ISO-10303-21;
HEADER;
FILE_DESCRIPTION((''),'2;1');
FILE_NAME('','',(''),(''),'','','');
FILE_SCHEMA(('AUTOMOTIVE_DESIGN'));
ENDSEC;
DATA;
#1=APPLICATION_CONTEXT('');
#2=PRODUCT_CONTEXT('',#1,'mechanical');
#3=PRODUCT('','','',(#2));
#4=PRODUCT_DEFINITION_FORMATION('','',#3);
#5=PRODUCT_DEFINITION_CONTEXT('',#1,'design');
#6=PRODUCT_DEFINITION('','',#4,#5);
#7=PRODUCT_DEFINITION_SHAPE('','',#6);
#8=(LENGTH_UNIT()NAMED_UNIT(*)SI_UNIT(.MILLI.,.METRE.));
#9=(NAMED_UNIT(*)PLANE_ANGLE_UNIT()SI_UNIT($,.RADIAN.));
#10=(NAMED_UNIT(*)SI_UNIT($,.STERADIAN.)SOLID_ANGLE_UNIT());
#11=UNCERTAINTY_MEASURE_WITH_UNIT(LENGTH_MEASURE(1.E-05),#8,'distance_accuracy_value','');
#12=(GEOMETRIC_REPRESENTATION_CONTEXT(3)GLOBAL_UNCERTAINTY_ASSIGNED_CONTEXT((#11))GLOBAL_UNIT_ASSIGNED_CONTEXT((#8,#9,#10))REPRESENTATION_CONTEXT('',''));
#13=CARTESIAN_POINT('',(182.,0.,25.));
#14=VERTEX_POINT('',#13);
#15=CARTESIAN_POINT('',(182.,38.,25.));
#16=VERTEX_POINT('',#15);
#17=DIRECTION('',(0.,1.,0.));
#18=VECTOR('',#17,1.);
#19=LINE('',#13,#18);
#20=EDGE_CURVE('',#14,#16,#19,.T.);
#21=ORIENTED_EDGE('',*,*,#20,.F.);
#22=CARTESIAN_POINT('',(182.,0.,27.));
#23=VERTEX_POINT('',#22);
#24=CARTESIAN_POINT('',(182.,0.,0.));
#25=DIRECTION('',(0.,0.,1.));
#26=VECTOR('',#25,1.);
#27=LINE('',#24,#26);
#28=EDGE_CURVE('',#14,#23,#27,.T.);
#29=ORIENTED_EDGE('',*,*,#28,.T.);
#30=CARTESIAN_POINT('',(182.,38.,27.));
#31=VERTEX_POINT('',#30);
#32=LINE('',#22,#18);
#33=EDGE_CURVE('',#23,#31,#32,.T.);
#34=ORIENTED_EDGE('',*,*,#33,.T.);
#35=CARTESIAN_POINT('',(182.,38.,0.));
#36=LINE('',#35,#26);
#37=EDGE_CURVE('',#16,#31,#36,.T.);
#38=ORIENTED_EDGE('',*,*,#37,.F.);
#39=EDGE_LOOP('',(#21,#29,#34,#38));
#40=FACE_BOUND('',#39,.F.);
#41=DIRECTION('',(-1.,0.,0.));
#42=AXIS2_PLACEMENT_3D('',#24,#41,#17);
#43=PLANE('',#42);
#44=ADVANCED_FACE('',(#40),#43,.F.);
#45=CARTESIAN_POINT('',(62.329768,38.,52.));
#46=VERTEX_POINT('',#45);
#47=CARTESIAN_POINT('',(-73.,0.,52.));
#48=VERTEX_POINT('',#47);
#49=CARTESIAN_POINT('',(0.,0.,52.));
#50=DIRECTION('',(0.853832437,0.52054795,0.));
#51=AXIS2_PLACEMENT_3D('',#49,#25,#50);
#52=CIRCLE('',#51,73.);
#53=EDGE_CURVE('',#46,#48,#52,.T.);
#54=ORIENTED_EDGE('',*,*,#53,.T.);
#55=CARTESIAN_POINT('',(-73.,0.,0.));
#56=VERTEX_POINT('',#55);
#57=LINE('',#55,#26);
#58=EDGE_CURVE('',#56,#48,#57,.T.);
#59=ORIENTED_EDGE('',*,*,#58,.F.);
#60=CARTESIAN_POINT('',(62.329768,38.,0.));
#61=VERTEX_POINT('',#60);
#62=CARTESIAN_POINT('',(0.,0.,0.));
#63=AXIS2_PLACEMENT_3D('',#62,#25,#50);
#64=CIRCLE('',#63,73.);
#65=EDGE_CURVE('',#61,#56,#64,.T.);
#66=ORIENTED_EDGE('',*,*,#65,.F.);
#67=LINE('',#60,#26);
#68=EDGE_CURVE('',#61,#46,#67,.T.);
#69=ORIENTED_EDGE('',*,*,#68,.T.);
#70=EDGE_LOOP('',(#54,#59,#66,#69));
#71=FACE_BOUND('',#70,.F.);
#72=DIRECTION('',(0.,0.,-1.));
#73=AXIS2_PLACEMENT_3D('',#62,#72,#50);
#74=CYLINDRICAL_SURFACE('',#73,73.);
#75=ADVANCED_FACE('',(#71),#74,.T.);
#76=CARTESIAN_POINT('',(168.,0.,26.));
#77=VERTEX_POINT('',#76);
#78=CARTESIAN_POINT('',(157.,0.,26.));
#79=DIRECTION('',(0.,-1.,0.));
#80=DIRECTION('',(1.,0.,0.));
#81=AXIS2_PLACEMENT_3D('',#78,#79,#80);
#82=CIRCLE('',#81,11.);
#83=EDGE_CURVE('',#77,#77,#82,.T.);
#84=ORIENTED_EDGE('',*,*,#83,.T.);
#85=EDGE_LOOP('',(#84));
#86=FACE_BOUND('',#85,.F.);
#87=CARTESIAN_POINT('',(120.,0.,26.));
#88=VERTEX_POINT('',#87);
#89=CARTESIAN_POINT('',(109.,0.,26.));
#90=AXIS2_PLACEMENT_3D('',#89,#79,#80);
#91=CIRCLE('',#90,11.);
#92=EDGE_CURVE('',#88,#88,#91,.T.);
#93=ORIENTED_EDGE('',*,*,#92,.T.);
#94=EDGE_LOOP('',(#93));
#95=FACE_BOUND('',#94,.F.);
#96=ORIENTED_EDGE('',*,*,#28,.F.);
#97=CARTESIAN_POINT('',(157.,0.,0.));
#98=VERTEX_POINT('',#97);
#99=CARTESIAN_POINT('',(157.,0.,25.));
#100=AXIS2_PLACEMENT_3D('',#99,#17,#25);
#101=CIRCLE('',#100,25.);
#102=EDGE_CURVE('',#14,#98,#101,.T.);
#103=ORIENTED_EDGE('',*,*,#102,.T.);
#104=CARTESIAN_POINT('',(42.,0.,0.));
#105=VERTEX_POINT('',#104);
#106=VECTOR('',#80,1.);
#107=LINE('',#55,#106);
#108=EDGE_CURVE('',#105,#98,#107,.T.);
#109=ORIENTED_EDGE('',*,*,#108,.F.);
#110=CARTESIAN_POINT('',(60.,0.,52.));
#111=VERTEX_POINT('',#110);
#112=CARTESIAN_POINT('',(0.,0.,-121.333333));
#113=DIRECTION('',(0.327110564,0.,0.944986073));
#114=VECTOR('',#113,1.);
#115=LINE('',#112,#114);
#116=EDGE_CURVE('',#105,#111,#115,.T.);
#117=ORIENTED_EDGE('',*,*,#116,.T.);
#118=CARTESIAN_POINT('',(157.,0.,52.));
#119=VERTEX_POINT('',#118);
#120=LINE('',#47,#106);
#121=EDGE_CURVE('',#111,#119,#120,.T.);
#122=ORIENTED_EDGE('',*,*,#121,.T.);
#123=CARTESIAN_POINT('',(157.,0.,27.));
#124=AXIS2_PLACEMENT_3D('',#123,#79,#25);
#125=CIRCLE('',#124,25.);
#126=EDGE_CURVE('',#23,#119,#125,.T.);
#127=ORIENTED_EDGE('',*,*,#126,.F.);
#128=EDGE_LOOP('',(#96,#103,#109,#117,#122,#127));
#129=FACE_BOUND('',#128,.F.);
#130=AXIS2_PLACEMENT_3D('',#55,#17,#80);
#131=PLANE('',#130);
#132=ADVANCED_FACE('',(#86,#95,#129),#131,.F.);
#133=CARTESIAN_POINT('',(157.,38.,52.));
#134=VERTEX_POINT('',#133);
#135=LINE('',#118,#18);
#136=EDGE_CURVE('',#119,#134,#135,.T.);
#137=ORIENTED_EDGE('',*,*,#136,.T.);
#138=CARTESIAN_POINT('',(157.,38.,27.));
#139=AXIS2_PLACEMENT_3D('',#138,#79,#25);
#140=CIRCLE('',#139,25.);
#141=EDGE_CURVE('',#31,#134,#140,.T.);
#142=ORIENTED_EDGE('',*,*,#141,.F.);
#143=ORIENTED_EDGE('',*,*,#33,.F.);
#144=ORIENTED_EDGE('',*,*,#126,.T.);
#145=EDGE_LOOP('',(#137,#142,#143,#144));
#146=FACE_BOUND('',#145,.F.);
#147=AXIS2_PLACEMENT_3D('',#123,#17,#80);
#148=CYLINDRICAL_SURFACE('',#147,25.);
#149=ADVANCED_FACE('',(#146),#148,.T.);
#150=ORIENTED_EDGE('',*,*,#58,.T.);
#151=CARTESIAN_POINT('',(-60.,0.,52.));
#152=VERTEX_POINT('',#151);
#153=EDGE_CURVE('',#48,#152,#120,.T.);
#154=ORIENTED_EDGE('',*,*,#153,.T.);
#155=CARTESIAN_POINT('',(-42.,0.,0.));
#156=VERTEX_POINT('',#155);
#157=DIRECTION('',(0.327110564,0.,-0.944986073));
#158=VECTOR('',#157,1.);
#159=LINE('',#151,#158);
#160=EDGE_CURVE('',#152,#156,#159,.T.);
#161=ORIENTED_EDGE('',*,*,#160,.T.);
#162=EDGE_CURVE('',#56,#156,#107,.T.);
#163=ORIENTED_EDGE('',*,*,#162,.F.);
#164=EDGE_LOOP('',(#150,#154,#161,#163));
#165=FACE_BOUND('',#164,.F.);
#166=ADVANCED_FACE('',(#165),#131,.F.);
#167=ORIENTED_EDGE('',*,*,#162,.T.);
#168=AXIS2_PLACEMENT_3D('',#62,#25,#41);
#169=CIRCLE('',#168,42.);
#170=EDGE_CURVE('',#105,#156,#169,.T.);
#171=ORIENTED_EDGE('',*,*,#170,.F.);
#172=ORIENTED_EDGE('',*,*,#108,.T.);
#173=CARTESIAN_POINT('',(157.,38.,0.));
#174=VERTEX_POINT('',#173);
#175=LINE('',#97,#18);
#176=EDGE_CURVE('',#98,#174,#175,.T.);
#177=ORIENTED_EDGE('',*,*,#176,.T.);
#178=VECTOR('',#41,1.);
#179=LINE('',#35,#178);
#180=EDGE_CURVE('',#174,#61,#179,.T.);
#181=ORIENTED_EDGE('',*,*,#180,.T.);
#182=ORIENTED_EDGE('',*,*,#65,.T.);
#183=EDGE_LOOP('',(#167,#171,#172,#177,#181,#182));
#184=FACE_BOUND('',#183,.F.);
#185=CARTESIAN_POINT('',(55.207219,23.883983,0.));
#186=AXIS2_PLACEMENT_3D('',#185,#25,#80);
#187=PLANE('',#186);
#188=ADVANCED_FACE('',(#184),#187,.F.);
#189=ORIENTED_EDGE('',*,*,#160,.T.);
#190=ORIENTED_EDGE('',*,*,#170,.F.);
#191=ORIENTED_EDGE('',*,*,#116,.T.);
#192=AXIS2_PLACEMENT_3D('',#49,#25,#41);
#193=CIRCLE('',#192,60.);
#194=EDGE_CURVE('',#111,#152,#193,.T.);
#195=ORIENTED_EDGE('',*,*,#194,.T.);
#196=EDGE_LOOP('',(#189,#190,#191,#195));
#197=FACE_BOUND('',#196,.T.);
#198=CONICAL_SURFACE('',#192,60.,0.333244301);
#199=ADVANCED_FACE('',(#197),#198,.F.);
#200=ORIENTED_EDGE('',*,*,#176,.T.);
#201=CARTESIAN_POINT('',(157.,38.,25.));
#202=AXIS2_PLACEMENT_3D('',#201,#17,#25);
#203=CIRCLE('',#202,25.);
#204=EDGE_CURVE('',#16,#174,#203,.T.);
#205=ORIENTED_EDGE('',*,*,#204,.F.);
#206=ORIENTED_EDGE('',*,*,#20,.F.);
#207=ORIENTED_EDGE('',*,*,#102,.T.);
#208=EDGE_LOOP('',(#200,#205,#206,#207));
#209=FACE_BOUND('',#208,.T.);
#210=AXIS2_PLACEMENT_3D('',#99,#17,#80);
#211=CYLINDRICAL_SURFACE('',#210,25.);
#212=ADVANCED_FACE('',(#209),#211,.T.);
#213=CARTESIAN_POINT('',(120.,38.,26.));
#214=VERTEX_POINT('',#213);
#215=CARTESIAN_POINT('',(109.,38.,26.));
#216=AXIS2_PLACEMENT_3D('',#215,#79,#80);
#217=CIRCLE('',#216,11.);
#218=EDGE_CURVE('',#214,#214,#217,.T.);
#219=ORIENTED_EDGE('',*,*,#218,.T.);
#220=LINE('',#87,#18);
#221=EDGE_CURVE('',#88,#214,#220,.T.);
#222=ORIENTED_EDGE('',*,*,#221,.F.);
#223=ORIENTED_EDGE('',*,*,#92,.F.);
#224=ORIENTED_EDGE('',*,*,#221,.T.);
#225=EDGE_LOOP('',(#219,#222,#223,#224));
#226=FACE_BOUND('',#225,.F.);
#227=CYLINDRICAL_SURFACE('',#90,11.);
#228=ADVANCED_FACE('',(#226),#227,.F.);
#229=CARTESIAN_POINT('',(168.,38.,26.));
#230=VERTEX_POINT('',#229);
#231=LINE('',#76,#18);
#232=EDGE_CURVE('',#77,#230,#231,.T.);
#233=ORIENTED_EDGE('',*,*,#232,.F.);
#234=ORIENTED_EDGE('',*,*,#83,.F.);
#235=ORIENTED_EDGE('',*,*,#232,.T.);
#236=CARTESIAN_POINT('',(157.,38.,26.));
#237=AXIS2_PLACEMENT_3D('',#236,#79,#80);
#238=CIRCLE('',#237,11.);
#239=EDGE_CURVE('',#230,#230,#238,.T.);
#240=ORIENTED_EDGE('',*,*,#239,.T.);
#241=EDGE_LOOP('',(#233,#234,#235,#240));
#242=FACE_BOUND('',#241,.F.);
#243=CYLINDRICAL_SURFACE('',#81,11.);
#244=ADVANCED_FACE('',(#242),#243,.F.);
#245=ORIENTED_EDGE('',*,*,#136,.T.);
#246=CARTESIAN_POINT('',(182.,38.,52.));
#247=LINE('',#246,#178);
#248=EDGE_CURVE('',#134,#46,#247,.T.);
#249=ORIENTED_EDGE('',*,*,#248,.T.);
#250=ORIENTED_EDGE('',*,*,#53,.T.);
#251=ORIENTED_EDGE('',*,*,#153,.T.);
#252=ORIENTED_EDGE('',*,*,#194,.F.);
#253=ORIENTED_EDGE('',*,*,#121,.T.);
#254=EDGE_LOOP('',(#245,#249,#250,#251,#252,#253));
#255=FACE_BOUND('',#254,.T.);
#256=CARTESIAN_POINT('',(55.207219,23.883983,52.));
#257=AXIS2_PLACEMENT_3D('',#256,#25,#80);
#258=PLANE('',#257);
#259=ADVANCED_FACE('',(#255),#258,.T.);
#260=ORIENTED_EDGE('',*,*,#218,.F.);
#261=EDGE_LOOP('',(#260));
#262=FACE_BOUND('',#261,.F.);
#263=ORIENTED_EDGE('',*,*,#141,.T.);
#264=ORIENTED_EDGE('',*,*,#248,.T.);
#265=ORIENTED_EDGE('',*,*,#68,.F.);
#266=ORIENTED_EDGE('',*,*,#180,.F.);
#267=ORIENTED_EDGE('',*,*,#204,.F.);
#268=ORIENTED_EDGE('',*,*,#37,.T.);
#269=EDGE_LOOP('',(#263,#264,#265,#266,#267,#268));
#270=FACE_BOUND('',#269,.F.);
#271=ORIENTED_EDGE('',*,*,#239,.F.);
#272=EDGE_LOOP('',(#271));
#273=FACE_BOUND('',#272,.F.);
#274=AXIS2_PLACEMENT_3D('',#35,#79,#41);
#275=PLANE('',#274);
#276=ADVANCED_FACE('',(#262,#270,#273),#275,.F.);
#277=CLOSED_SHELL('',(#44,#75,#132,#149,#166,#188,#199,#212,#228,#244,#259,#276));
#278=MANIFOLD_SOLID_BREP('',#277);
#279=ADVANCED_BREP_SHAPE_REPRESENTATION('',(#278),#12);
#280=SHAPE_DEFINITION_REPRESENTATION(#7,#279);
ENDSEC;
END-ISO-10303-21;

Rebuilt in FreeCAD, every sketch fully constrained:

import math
import FreeCAD as App
import Part
import Sketcher

V = App.Vector


def edges_at(feature, points):
    """Names of the edges that pass closest to the given points."""
    edges = feature.Shape.Edges
    near = lambda p: min(range(len(edges)), key=lambda i: edges[i].distToShape(Part.Vertex(*p))[0])
    return sorted({f"Edge{near(p) + 1}" for p in points})


def add_polygon(sketch, points):
    """Adds a closed chain of lines whose ends are joined by coincident constraints."""
    first, n = sketch.GeometryCount, len(points)
    for a, b in zip(points, points[1:] + points[:1]):
        sketch.addGeometry(Part.LineSegment(App.Vector(*a, 0), App.Vector(*b, 0)), False)
    for i in range(n):
        sketch.addConstraint(Sketcher.Constraint("Coincident", first + i, 2, first + (i + 1) % n, 1))

doc = App.newDocument("Part")
body = doc.addObject("PartDesign::Body", "Body")

# Sketch on XY plane
sketch1 = doc.addObject("Sketcher::SketchObject", "Sketch")
body.addObject(sketch1)
sketch1.AttachmentSupport = (doc.XY_Plane, [""])
sketch1.MapMode = "FlatFace"
sketch1.addGeometry([
    Part.LineSegment(V(182, 38, 0), V(62, 38, 0)),
    Part.ArcOfCircle(Part.Circle(V(0, 0, 0), V(0, 0, 1), 73), math.radians(31), math.radians(180)),
    Part.LineSegment(V(-73, 0, 0), V(182, 0, 0)),
    Part.LineSegment(V(182, 0, 0), V(182, 38, 0)),
], False)
sketch1.addConstraint([
    Sketcher.Constraint("Coincident", 0, 2, 1, 1),
    Sketcher.Constraint("Coincident", 1, 2, 2, 1),
    Sketcher.Constraint("Coincident", 2, 2, 3, 1),
    Sketcher.Constraint("Coincident", 3, 2, 0, 1),
    Sketcher.Constraint("Horizontal", 0),
    Sketcher.Constraint("Horizontal", 2),
    Sketcher.Constraint("Vertical", 3),
    Sketcher.Constraint("Coincident", 1, 3, -1, 1),
    Sketcher.Constraint("PointOnObject", 1, 2, -1),
    Sketcher.Constraint("Radius", 1, 73.0),
    Sketcher.Constraint("DistanceX", 2, 1, 2, 2, 255.0),
    Sketcher.Constraint("DistanceY", 3, 1, 3, 2, 38.0),
])
pad1 = doc.addObject("PartDesign::Pad", "Pad")
body.addObject(pad1)
pad1.Profile = sketch1
pad1.Length = 52

# Sketch on XZ plane
sketch2 = doc.addObject("Sketcher::SketchObject", "Sketch001")
body.addObject(sketch2)
sketch2.AttachmentSupport = (doc.XZ_Plane, [""])
sketch2.MapMode = "FlatFace"
sketch2.addGeometry([
    Part.Circle(V(109, 26, 0), V(0, 0, 1), 11),
    Part.Circle(V(157, 26, 0), V(0, 0, 1), 11),
], False)
sketch2.addConstraint([
    Sketcher.Constraint("Equal", 0, 1),
    Sketcher.Constraint("Horizontal", 0, 3, 1, 3),
    Sketcher.Constraint("Diameter", 0, 22.0),
    Sketcher.Constraint("DistanceX", -1, 1, 0, 3, 109.0),
    Sketcher.Constraint("DistanceY", -1, 1, 0, 3, 26.0),
    Sketcher.Constraint("DistanceX", -1, 1, 1, 3, 157.0),
])
pocket1 = doc.addObject("PartDesign::Pocket", "Pocket")
body.addObject(pocket1)
pocket1.Profile = sketch2
pocket1.Length = 38

# Sketch on XZ plane
sketch3 = doc.addObject("Sketcher::SketchObject", "Sketch002")
body.addObject(sketch3)
sketch3.AttachmentSupport = (doc.XZ_Plane, [""])
sketch3.MapMode = "FlatFace"
add_polygon(sketch3, [(0, 0), (0, 52), (-60, 52), (-42, 0)])  # lines 0-3
sketch3.addConstraint([
    Sketcher.Constraint("Vertical", 0),
    Sketcher.Constraint("Horizontal", 1),
    Sketcher.Constraint("Horizontal", 3),
    Sketcher.Constraint("Coincident", 3, 2, -1, 1),
    Sketcher.Constraint("DistanceX", 1, 2, 1, 1, 60.0),
    Sketcher.Constraint("DistanceX", 3, 1, 3, 2, 42.0),
    Sketcher.Constraint("DistanceY", 0, 1, 0, 2, 52.0),
])
groove = doc.addObject("PartDesign::Groove", "Groove")
body.addObject(groove)
groove.Profile = sketch3
groove.ReferenceAxis = (sketch3, ["V_Axis"])
groove.Angle = 360
doc.recompute()

fillet = doc.addObject("PartDesign::Fillet", "Fillet")
body.addObject(fillet)
fillet.Base = (groove, edges_at(groove, [(182, 19, 52), (182, 19, 0)]))
fillet.Radius = 25

doc.recompute()
